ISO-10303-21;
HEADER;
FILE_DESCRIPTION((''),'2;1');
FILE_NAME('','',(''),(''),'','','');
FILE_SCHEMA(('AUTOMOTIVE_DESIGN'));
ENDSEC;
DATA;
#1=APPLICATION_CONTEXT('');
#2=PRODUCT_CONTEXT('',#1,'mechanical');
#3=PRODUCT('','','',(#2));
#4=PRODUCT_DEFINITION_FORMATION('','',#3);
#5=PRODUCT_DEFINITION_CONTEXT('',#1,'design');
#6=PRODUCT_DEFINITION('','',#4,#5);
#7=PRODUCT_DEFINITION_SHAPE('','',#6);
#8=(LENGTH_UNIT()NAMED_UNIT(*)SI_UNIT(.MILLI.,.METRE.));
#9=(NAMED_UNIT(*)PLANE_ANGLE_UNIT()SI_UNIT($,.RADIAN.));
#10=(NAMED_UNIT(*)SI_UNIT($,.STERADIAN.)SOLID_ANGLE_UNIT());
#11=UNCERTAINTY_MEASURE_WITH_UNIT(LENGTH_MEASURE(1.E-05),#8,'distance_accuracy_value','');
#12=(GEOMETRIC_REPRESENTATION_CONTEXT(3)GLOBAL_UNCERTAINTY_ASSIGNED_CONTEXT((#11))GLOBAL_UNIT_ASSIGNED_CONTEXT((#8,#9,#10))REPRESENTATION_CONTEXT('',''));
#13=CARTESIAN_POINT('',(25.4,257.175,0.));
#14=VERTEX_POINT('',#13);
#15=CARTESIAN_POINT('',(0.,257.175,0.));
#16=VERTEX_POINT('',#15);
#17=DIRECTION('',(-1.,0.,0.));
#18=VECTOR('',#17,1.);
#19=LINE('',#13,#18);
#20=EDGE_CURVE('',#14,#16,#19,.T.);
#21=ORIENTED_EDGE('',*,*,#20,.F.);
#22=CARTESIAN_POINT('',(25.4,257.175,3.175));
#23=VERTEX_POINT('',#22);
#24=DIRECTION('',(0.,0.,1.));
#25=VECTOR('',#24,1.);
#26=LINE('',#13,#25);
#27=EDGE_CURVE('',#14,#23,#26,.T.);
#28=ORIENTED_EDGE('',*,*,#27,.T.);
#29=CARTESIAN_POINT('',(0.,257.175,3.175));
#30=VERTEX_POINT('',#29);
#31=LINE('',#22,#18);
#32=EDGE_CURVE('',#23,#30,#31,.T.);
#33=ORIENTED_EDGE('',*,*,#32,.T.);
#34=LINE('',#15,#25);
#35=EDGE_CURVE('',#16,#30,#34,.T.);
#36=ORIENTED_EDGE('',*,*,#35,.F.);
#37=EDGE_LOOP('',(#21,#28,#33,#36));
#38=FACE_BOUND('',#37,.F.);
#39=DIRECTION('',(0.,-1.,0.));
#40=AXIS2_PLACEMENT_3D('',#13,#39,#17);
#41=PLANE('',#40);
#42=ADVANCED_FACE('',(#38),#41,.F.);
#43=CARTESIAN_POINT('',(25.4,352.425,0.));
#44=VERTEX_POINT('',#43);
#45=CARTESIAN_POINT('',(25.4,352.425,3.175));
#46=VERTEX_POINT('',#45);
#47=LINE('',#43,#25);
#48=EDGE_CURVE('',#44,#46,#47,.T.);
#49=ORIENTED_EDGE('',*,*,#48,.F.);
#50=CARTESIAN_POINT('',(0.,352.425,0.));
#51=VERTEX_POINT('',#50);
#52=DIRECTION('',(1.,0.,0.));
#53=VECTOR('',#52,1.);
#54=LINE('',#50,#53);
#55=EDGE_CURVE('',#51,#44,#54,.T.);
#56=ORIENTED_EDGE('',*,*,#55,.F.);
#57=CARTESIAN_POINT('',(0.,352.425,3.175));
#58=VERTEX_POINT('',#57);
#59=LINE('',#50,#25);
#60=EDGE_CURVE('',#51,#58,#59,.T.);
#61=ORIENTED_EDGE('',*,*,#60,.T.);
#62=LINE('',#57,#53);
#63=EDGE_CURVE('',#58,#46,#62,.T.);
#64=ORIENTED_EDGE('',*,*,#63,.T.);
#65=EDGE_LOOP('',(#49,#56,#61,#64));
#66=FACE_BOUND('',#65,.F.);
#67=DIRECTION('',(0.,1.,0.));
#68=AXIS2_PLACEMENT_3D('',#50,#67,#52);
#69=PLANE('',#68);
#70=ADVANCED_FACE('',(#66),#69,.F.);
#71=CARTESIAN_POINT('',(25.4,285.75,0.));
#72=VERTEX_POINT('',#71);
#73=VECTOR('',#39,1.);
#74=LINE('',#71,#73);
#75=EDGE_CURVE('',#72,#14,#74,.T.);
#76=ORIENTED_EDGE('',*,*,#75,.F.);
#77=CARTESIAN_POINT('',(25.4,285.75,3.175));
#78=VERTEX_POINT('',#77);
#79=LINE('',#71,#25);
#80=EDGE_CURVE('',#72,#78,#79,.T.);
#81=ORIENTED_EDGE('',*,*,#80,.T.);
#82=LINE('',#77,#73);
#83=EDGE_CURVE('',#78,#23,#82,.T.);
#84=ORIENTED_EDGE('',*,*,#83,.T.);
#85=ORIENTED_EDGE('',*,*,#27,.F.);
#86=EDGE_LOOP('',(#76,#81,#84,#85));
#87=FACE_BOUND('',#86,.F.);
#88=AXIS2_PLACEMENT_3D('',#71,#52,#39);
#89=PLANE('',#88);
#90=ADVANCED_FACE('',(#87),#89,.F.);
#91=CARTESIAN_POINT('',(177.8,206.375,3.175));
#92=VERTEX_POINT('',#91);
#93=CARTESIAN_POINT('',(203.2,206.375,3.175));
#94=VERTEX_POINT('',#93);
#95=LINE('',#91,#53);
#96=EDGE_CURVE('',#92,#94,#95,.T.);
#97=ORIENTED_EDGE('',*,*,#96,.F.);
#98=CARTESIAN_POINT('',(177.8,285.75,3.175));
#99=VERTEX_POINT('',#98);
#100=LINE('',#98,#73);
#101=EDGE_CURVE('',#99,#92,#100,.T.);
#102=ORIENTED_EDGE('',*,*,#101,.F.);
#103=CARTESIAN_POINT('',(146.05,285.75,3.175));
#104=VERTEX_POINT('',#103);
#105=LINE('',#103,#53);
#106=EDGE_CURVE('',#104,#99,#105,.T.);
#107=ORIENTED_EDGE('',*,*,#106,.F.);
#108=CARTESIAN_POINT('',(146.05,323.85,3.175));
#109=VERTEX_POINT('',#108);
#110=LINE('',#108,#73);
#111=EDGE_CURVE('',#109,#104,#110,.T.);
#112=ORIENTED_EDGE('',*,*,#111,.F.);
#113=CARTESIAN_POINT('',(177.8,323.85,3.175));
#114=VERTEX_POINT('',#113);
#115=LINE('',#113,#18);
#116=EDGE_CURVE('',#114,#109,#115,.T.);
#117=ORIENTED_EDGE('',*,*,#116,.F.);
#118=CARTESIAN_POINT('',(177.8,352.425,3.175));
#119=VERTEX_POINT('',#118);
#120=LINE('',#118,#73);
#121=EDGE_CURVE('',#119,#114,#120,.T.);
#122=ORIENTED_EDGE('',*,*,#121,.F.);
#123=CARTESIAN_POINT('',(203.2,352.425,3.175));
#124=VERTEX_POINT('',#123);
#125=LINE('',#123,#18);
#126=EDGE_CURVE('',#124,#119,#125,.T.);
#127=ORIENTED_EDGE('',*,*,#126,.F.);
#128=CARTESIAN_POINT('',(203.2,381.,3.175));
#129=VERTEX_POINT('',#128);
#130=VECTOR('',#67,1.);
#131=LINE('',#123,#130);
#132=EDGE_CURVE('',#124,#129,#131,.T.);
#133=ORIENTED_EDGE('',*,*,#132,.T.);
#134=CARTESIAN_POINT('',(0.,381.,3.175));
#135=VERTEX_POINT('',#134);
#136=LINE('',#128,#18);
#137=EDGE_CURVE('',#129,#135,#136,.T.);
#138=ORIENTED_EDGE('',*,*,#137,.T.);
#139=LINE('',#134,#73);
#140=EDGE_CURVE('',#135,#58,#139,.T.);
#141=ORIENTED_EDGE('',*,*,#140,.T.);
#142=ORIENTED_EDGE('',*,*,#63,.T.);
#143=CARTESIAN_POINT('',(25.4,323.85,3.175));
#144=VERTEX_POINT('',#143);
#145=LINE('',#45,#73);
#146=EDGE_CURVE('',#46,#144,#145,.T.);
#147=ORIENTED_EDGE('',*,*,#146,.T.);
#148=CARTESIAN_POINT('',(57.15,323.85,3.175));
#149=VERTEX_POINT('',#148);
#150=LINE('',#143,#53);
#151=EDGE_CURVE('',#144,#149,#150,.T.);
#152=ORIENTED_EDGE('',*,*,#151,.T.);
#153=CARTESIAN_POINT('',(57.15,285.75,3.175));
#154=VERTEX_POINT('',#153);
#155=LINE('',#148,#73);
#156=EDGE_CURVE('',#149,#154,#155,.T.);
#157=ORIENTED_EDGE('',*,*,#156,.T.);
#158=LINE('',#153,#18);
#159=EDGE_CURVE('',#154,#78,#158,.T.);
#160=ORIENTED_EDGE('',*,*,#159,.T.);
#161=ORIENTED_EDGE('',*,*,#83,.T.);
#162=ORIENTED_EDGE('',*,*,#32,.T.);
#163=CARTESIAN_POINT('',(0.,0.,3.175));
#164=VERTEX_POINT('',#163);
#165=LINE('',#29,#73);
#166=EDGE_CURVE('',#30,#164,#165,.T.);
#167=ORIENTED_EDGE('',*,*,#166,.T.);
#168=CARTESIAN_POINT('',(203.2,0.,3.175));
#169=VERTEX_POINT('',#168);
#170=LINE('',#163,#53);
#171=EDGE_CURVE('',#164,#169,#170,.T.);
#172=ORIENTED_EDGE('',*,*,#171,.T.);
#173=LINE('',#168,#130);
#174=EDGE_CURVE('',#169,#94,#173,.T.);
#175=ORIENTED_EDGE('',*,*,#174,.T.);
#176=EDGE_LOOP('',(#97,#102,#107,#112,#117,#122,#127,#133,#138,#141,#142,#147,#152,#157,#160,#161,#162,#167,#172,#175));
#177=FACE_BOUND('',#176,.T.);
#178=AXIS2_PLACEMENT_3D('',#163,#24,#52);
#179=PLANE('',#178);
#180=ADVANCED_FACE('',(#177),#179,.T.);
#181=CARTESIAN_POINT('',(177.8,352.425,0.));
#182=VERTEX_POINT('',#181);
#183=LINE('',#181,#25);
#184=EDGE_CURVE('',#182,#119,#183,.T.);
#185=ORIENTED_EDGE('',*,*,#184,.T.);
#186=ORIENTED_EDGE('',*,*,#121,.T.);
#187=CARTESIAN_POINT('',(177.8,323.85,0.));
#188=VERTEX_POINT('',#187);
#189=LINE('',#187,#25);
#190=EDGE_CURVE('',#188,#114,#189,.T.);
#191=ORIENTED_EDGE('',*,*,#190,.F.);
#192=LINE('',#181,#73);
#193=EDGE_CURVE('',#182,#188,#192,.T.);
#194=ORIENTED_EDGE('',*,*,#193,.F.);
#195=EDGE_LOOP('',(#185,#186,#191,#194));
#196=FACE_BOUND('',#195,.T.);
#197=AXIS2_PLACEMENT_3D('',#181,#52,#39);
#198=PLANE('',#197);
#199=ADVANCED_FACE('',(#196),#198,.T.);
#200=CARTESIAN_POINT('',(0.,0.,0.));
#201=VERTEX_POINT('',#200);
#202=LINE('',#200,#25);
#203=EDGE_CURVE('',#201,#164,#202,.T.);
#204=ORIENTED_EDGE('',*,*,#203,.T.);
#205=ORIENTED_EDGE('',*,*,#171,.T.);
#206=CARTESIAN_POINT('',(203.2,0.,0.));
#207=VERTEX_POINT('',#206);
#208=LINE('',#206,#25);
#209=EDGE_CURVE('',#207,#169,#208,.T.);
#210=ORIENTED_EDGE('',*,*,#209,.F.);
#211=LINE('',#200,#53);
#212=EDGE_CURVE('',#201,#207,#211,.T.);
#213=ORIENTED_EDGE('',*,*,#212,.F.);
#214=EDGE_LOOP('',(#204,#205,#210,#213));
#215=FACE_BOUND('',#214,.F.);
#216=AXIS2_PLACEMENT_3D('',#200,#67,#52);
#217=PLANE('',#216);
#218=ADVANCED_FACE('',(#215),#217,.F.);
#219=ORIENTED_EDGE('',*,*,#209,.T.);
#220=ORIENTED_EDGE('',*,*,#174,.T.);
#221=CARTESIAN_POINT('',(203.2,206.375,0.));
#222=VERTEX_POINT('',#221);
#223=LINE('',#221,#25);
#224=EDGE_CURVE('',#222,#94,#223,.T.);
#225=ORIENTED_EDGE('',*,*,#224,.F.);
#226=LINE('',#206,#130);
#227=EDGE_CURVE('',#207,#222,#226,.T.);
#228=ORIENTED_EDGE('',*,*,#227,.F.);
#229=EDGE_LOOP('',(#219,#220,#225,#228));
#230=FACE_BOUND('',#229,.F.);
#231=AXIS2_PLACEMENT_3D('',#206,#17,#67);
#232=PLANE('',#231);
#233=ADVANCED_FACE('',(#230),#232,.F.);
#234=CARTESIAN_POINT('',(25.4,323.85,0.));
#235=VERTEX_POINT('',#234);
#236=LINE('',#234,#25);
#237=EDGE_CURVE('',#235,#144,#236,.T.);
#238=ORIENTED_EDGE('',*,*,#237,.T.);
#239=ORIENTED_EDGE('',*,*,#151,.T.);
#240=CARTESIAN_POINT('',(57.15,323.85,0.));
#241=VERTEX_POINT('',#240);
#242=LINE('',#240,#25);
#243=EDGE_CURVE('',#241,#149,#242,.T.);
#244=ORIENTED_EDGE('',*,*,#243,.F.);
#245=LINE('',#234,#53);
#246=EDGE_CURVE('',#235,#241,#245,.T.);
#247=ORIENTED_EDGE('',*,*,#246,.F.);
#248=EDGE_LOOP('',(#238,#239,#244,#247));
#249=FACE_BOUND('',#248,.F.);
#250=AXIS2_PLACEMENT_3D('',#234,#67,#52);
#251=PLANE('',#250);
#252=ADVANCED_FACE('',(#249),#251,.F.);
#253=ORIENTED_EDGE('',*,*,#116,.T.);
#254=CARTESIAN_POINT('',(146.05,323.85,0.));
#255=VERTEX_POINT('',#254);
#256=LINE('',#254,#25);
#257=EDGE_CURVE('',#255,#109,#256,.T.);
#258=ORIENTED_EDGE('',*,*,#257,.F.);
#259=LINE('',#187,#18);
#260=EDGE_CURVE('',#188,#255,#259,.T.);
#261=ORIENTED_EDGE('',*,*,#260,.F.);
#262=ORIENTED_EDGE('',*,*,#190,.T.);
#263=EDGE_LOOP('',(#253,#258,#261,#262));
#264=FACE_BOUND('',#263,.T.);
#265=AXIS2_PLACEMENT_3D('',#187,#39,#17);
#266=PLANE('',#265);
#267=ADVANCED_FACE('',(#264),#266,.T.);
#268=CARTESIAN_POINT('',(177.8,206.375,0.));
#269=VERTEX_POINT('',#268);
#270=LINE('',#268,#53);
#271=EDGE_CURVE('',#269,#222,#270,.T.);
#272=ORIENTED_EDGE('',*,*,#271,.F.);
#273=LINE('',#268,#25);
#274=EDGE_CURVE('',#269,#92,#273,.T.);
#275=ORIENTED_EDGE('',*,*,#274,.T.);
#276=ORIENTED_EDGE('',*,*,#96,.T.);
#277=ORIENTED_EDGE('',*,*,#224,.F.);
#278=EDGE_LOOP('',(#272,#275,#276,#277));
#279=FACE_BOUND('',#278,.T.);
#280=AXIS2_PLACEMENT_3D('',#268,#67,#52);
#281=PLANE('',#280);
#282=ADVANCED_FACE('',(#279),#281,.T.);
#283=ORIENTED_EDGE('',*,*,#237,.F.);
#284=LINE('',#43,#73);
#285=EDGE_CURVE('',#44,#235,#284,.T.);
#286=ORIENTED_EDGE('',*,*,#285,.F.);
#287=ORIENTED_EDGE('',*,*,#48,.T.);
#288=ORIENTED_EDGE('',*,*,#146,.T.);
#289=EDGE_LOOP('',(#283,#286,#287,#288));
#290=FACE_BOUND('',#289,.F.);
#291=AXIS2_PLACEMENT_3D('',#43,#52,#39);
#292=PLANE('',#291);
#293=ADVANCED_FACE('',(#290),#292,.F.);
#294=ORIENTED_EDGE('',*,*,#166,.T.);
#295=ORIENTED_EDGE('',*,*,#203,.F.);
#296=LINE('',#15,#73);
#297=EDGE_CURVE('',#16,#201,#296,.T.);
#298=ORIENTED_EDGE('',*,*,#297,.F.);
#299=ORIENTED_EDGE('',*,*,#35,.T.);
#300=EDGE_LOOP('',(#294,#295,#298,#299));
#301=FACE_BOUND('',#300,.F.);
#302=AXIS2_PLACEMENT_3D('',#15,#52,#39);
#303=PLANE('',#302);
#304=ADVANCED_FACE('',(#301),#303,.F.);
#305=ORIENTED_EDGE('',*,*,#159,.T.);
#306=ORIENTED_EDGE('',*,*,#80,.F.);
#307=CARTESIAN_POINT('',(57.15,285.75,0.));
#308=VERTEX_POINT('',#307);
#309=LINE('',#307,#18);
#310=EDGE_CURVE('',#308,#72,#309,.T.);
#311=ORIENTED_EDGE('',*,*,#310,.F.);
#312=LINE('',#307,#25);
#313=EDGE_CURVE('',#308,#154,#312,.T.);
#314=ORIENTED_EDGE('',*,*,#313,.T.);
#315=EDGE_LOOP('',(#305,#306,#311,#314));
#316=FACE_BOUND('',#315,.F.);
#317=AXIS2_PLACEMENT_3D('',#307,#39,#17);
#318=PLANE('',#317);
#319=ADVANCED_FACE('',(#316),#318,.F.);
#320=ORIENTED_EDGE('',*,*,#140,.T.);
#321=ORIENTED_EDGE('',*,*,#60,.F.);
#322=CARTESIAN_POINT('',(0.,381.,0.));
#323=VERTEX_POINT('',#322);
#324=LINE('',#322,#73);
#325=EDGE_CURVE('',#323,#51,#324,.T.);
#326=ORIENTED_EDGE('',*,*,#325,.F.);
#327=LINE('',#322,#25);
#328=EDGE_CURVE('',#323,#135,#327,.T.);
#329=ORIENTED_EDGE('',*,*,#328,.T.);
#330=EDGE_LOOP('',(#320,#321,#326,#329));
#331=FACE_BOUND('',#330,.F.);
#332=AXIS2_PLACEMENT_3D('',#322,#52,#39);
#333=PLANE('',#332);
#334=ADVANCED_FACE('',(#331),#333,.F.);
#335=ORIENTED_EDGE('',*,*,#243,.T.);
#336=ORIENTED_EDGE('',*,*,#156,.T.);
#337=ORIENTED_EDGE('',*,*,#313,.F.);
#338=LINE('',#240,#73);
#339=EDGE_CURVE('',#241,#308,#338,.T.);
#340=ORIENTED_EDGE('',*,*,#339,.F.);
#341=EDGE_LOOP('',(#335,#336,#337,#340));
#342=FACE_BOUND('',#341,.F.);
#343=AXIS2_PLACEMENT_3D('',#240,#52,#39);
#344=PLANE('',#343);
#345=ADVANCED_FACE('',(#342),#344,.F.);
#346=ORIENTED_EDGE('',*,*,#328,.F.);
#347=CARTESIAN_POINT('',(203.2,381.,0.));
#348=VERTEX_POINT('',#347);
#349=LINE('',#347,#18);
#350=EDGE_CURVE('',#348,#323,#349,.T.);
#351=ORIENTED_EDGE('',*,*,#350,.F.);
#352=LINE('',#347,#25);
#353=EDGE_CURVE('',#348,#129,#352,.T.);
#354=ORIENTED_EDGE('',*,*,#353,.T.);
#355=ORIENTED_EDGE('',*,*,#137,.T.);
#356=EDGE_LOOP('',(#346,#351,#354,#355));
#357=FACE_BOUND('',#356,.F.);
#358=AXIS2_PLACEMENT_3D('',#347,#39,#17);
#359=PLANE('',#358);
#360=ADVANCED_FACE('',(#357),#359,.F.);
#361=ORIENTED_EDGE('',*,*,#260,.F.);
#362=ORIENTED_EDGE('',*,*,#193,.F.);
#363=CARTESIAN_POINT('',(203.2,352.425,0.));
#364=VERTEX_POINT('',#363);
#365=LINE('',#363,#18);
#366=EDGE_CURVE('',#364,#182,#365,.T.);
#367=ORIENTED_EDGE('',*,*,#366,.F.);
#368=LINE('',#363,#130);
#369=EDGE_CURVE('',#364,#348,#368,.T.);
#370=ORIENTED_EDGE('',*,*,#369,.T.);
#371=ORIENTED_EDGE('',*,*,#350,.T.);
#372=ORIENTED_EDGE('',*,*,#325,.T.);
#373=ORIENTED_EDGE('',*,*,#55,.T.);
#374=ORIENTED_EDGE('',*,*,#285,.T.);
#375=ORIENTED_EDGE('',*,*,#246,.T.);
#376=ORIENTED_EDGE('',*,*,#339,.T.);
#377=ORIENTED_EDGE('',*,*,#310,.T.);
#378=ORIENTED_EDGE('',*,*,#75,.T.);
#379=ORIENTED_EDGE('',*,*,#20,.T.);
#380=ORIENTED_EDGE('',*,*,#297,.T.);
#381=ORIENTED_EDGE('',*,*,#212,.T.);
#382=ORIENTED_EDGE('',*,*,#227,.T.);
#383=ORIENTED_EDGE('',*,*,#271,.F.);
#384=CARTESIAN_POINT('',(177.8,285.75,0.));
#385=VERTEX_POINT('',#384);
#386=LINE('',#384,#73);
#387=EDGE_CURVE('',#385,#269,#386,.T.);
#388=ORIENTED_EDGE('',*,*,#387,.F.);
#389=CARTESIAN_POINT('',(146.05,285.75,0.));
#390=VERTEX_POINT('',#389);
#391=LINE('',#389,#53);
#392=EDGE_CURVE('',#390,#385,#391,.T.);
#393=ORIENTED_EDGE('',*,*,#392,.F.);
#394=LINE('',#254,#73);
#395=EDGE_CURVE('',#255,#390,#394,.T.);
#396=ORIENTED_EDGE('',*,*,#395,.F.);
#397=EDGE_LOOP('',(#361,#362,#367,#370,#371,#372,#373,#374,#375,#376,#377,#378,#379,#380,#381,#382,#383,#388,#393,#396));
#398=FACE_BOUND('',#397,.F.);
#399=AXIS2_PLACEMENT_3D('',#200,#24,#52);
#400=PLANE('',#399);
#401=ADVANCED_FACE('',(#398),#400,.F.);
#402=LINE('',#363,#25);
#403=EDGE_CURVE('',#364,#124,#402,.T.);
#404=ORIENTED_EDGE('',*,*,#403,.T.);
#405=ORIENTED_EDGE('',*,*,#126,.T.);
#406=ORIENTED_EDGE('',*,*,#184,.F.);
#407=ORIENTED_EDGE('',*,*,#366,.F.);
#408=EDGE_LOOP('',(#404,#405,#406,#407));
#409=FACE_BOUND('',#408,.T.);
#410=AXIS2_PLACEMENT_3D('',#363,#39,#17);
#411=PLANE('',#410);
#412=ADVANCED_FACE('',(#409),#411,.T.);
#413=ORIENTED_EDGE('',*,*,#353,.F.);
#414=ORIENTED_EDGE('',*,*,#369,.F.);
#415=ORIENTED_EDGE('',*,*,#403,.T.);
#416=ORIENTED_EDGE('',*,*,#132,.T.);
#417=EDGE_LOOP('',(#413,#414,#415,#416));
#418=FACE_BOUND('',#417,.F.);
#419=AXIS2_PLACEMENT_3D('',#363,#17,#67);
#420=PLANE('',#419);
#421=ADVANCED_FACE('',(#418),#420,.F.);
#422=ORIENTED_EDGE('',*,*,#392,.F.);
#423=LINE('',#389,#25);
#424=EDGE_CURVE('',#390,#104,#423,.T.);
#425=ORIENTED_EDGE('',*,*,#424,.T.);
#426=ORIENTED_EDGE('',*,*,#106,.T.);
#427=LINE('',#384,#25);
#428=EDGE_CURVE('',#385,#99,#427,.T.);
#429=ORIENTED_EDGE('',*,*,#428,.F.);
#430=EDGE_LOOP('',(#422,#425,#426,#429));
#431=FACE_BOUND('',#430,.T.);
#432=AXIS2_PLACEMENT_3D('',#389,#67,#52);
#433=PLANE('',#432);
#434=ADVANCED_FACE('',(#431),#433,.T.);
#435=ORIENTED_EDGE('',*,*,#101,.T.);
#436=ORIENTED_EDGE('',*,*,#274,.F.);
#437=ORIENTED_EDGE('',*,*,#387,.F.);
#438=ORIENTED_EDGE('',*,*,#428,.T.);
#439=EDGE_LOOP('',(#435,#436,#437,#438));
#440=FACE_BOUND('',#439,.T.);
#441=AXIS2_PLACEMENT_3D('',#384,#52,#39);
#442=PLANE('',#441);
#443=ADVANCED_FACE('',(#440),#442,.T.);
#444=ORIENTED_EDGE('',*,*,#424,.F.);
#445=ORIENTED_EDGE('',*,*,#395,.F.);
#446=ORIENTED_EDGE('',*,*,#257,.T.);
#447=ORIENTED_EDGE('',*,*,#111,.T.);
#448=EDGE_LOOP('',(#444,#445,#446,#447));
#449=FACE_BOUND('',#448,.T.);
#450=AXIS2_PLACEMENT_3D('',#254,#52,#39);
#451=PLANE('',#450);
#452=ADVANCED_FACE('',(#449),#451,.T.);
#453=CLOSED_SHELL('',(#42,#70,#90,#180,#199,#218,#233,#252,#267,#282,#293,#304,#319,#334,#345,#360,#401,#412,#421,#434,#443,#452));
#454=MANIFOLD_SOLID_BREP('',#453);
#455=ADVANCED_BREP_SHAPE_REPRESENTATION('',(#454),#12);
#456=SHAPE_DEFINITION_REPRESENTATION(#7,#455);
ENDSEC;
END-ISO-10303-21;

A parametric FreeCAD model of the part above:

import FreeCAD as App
import Part
import Sketcher

V = App.Vector
Q = App.Units.Quantity


def add_polygon(sketch, points):
    """Adds a closed chain of lines whose ends are joined by coincident constraints."""
    first, n = sketch.GeometryCount, len(points)
    for a, b in zip(points, points[1:] + points[:1]):
        sketch.addGeometry(Part.LineSegment(App.Vector(*a, 0), App.Vector(*b, 0)), False)
    for i in range(n):
        sketch.addConstraint(Sketcher.Constraint("Coincident", first + i, 2, first + (i + 1) % n, 1))

doc = App.newDocument("Part")
body = doc.addObject("PartDesign::Body", "Body")

# Sketch on XY plane
sketch1 = doc.addObject("Sketcher::SketchObject", "Sketch")
body.addObject(sketch1)
sketch1.AttachmentSupport = (doc.XY_Plane, [""])
sketch1.MapMode = "FlatFace"
add_polygon(sketch1, [(0, 257.175), (0, 0), (203.2, 0), (203.2, 206.375), (177.8, 206.375), (177.8, 285.75), (146.05, 285.75), (146.05, 323.85), (177.8, 323.85), (177.8, 352.425), (203.2, 352.425), (203.2, 381), (0, 381), (0, 352.425), (25.4, 352.425), (25.4, 323.85), (57.15, 323.85), (57.15, 285.75), (25.4, 285.75), (25.4, 257.175)])  # lines 0-19
sketch1.addConstraint([
    Sketcher.Constraint("Vertical", 0),
    Sketcher.Constraint("Horizontal", 1),
    Sketcher.Constraint("Vertical", 2),
    Sketcher.Constraint("Horizontal", 3),
    Sketcher.Constraint("Vertical", 4),
    Sketcher.Constraint("Horizontal", 5),
    Sketcher.Constraint("Vertical", 6),
    Sketcher.Constraint("Horizontal", 7),
    Sketcher.Constraint("Vertical", 8),
    Sketcher.Constraint("Horizontal", 9),
    Sketcher.Constraint("Vertical", 10),
    Sketcher.Constraint("Horizontal", 11),
    Sketcher.Constraint("Vertical", 12),
    Sketcher.Constraint("Horizontal", 13),
    Sketcher.Constraint("Vertical", 14),
    Sketcher.Constraint("Horizontal", 15),
    Sketcher.Constraint("Vertical", 16),
    Sketcher.Constraint("Horizontal", 17),
    Sketcher.Constraint("Vertical", 18),
    Sketcher.Constraint("Horizontal", 19),
    Sketcher.Constraint("Coincident", 0, 2, -1, 1),
    Sketcher.Constraint("PointOnObject", 11, 2, -2),
    Sketcher.Constraint("Horizontal", 9, 2, 12, 2),
    Sketcher.Constraint("Horizontal", 7, 2, 14, 2),
    Sketcher.Constraint("Horizontal", 5, 2, 16, 2),
    Sketcher.Constraint("Vertical", 4, 2, 7, 2),
    Sketcher.Constraint("Vertical", 2, 2, 9, 2),
    Sketcher.Constraint("Vertical", 14, 2, 17, 2),
    Sketcher.Constraint("Equal", 9, 13),
    Sketcher.Constraint("Equal", 7, 15),
    Sketcher.Constraint("Equal", 8, 10),
    Sketcher.Constraint("Equal", 14, 18),
    Sketcher.Constraint("DistanceX", 1, 1, 1, 2, Q("8 in")),
    Sketcher.Constraint("DistanceX", 3, 2, 3, 1, Q("1 in")),
    Sketcher.Constraint("DistanceY", 6, 1, 6, 2, Q("1.5 in")),
    Sketcher.Constraint("DistanceY", -1, 1, 10, 2, Q("15 in")),
    Sketcher.Constraint("DistanceX", 5, 2, 5, 1, Q("1.25 in")),
    Sketcher.Constraint("DistanceY", 4, 1, 4, 2, Q("3.125 in")),
    Sketcher.Constraint("DistanceY", 8, 1, 8, 2, Q("1.125 in")),
])
pad1 = doc.addObject("PartDesign::Pad", "Pad")
body.addObject(pad1)
pad1.Profile = sketch1
pad1.Length = Q("0.125 in")

doc.recompute()
